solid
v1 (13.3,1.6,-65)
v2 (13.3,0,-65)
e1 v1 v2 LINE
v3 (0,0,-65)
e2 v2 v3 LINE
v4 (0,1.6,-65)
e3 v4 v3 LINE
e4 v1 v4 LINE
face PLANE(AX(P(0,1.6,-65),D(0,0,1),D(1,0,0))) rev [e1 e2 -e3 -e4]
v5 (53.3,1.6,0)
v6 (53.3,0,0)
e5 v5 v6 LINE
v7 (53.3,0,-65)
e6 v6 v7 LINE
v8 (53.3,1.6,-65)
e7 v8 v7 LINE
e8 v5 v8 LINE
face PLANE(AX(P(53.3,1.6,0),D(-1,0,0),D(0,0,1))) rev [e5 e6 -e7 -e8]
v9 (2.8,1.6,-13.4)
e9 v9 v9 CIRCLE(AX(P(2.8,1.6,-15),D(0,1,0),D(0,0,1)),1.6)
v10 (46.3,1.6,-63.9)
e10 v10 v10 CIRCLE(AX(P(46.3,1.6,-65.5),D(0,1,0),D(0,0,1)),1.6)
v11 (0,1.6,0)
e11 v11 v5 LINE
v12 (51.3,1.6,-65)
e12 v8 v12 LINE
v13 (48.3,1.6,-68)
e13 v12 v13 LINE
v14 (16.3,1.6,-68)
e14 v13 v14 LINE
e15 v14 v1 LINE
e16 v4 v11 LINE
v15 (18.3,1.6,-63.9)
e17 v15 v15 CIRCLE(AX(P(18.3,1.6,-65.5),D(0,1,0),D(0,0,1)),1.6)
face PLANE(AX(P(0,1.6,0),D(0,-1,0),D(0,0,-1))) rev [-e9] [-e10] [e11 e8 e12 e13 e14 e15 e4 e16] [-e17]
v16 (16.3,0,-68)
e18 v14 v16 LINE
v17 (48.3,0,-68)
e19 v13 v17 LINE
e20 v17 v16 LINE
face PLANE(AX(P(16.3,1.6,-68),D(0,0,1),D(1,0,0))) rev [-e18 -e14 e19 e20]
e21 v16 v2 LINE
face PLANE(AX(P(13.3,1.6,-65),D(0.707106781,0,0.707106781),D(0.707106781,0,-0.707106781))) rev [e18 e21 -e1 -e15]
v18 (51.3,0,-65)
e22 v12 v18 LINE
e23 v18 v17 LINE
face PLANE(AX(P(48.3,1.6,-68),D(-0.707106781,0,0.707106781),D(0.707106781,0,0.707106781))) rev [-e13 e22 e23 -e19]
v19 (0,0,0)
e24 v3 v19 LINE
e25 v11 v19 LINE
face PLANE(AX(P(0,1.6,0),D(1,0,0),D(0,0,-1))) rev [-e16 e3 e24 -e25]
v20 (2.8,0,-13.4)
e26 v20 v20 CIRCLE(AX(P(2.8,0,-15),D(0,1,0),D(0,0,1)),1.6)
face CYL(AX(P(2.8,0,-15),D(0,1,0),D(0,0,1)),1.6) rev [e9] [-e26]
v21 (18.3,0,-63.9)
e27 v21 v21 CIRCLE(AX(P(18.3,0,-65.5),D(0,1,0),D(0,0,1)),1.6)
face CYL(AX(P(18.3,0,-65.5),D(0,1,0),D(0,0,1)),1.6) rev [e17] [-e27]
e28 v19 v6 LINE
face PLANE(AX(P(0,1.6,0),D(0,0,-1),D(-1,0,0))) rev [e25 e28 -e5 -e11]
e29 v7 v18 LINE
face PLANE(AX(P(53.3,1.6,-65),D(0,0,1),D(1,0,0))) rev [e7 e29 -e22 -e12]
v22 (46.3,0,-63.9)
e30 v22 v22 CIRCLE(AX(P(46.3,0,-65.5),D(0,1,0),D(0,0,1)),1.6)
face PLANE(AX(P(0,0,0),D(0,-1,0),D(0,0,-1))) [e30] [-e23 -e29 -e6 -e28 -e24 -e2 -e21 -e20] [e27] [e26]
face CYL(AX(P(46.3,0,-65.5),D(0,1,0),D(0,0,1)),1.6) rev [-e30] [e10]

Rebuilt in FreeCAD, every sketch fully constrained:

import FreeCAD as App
import Part
import Sketcher

V = App.Vector
Q = App.Units.Quantity

doc = App.newDocument("Part")
params = doc.addObject("Spreadsheet::Sheet", "Params")
for row, (alias, value) in enumerate([
    ("sketch1_width", "2 mm"),
    ("sketch1_width2", "32 mm"),
    ("sketch1_height", "65 mm"),
    ("sketch1_width3", "53.3 mm"),
    ("sketch1_width4", "13.3 mm"),
    ("pad1_length", "1.6 mm"),
    ("sketch2_diameter", "3.2 mm"),
    ("pocket1_length", "1.6 mm"),
], start=1):
    params.set(f"A{row}", alias)
    params.set(f"B{row}", "=" + value)
    params.setAlias(f"B{row}", alias)

body = doc.addObject("PartDesign::Body", "Body")

# Sketch on XZ plane
sketch1 = body.newObject("Sketcher::SketchObject", "Sketch")
sketch1.AttachmentSupport = (doc.getObject("XZ_Plane"), [""])
sketch1.MapMode = "FlatFace"
sketch1.addGeometry(Part.LineSegment(V(0, 0, 0), V(53.3, 0, 0)), False)
sketch1.addGeometry(Part.LineSegment(V(53.3, 0, 0), V(53.3, -65, 0)), False)
sketch1.addGeometry(Part.LineSegment(V(53.3, -65, 0), V(51.3, -65, 0)), False)
sketch1.addGeometry(Part.LineSegment(V(51.3, -65, 0), V(48.3, -68, 0)), False)
sketch1.addGeometry(Part.LineSegment(V(48.3, -68, 0), V(16.3, -68, 0)), False)
sketch1.addGeometry(Part.LineSegment(V(16.3, -68, 0), V(13.3, -65, 0)), False)
sketch1.addGeometry(Part.LineSegment(V(13.3, -65, 0), V(0, -65, 0)), False)
sketch1.addGeometry(Part.LineSegment(V(0, -65, 0), V(0, 0, 0)), False)
sketch1.addConstraint(Sketcher.Constraint("Coincident", 0, 2, 1, 1))
sketch1.addConstraint(Sketcher.Constraint("Coincident", 1, 2, 2, 1))
sketch1.addConstraint(Sketcher.Constraint("Coincident", 2, 2, 3, 1))
sketch1.addConstraint(Sketcher.Constraint("Coincident", 3, 2, 4, 1))
sketch1.addConstraint(Sketcher.Constraint("Coincident", 4, 2, 5, 1))
sketch1.addConstraint(Sketcher.Constraint("Coincident", 5, 2, 6, 1))
sketch1.addConstraint(Sketcher.Constraint("Coincident", 6, 2, 7, 1))
sketch1.addConstraint(Sketcher.Constraint("Coincident", 7, 2, 0, 1))
sketch1.addConstraint(Sketcher.Constraint("Horizontal", 0))
sketch1.addConstraint(Sketcher.Constraint("Vertical", 1))
sketch1.addConstraint(Sketcher.Constraint("Horizontal", 2))
sketch1.addConstraint(Sketcher.Constraint("Horizontal", 4))
sketch1.addConstraint(Sketcher.Constraint("Horizontal", 6))
sketch1.addConstraint(Sketcher.Constraint("Vertical", 7))
sketch1.addConstraint(Sketcher.Constraint("Coincident", 7, 2, -1, 1))
sketch1.addConstraint(Sketcher.Constraint("Perpendicular", 3, 5))
sketch1.addConstraint(Sketcher.Constraint("Horizontal", 2, 2, 5, 2))
sketch1.addConstraint(Sketcher.Constraint("Equal", 3, 5))
sketch1.addConstraint(Sketcher.Constraint("DistanceX", 2, 2, 2, 1, Q("2 mm")))
sketch1.addConstraint(Sketcher.Constraint("DistanceX", 4, 2, 4, 1, Q("32 mm")))
sketch1.addConstraint(Sketcher.Constraint("DistanceY", 1, 2, 1, 1, Q("65 mm")))
sketch1.addConstraint(Sketcher.Constraint("DistanceX", 0, 1, 0, 2, Q("53.3 mm")))
sketch1.addConstraint(Sketcher.Constraint("DistanceX", 6, 2, 6, 1, Q("13.3 mm")))
sketch1.setExpression("Constraints[18]", "Params.sketch1_width")
sketch1.setExpression("Constraints[19]", "Params.sketch1_width2")
sketch1.setExpression("Constraints[20]", "Params.sketch1_height")
sketch1.setExpression("Constraints[21]", "Params.sketch1_width3")
sketch1.setExpression("Constraints[22]", "Params.sketch1_width4")
pad1 = body.newObject("PartDesign::Pad", "Pad")
pad1.Profile = sketch1
pad1.setExpression("Length", "Params.pad1_length")
pad1.Reversed = True

# Sketch on XZ plane
sketch2 = body.newObject("Sketcher::SketchObject", "Sketch001")
sketch2.AttachmentSupport = (doc.getObject("XZ_Plane"), [""])
sketch2.MapMode = "FlatFace"
sketch2.AttachmentOffset = App.Placement(V(0, 0, -1.6), App.Rotation())
sketch2.addGeometry(Part.Circle(V(18.3, -65.5, 0), V(0, 0, 1), 1.6), False)
sketch2.addGeometry(Part.Circle(V(46.3, -65.5, 0), V(0, 0, 1), 1.6), False)
sketch2.addGeometry(Part.Circle(V(2.8, -15, 0), V(0, 0, 1), 1.6), False)
sketch2.addConstraint(Sketcher.Constraint("Equal", 0, 1))
sketch2.addConstraint(Sketcher.Constraint("Equal", 1, 2))
sketch2.addConstraint(Sketcher.Constraint("Horizontal", 0, 3, 1, 3))
sketch2.addConstraint(Sketcher.Constraint("Diameter", 0, Q("3.2 mm")))
sketch2.addConstraint(Sketcher.Constraint("DistanceY", 2, 3, -1, 1, Q("15 mm")))
sketch2.addConstraint(Sketcher.Constraint("DistanceX", 0, 3, 1, 3, Q("28 mm")))
sketch2.addConstraint(Sketcher.Constraint("DistanceX", -1, 1, 0, 3, Q("18.3 mm")))
sketch2.addConstraint(Sketcher.Constraint("DistanceY", 0, 3, -1, 1, Q("65.5 mm")))
sketch2.addConstraint(Sketcher.Constraint("DistanceX", -1, 1, 2, 3, Q("2.8 mm")))
sketch2.setExpression("Constraints[3]", "Params.sketch2_diameter")
pocket1 = body.newObject("PartDesign::Pocket", "Pocket")
pocket1.Profile = sketch2
pocket1.setExpression("Length", "Params.pocket1_length")
pocket1.Reversed = True

doc.recompute()
